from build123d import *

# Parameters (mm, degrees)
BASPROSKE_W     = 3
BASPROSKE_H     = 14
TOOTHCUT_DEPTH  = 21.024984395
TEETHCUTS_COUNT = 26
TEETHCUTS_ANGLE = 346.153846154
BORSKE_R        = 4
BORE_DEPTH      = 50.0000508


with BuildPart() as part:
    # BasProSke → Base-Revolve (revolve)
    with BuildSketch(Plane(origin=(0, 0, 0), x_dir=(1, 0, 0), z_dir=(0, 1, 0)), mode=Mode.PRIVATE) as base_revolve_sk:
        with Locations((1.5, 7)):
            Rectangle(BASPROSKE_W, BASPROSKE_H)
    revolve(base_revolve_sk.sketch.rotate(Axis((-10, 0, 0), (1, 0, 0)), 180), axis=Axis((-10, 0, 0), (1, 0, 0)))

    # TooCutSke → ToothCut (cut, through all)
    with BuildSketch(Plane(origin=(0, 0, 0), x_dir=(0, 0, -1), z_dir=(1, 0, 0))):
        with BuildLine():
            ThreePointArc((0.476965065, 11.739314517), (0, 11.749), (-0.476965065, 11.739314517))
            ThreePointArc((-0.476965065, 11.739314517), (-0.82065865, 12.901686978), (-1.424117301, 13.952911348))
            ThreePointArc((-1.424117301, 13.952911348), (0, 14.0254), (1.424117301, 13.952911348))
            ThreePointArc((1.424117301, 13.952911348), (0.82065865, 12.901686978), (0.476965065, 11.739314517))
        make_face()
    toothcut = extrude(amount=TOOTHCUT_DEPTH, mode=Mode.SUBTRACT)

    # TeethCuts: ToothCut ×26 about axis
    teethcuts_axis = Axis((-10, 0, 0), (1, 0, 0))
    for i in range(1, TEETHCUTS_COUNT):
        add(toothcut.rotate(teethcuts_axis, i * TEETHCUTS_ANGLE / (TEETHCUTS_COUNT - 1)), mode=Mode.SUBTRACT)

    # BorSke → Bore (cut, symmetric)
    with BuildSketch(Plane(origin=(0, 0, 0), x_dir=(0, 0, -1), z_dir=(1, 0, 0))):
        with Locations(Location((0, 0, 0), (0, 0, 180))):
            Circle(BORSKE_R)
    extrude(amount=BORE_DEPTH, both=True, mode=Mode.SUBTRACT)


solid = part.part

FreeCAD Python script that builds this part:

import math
import FreeCAD as App
import Part
import Sketcher


def add_polygon(sketch, points):
    """Adds a closed chain of lines whose ends are joined by coincident constraints."""
    first, n = sketch.GeometryCount, len(points)
    for a, b in zip(points, points[1:] + points[:1]):
        sketch.addGeometry(Part.LineSegment(App.Vector(*a, 0), App.Vector(*b, 0)), False)
    for i in range(n):
        sketch.addConstraint(Sketcher.Constraint("Coincident", first + i, 2, first + (i + 1) % n, 1))

doc = App.newDocument("Part")
body = doc.addObject("PartDesign::Body", "Body")

sketch1 = body.newObject("Sketcher::SketchObject", "Sketch")
sketch1.AttachmentSupport = (doc.getObject("XZ_Plane"), [""])
sketch1.MapMode = "FlatFace"
add_polygon(sketch1, [(0, -14), (0, 0), (3, 0), (3, -14)])
sketch1.addConstraint(Sketcher.Constraint("Vertical", 0))
sketch1.addConstraint(Sketcher.Constraint("Horizontal", 1))
sketch1.addConstraint(Sketcher.Constraint("Vertical", 2))
sketch1.addConstraint(Sketcher.Constraint("Horizontal", 3))
sketch1.addConstraint(Sketcher.Constraint("Coincident", 0, 2, -1, 1))
sketch1.addConstraint(Sketcher.Constraint("DistanceX", 1, 1, 1, 2, 3.0))
sketch1.addConstraint(Sketcher.Constraint("DistanceY", 0, 1, 0, 2, 14.0))
revolution = body.newObject("PartDesign::Revolution", "Revolution")
revolution.Profile = sketch1
revolution.ReferenceAxis = (sketch1, ["H_Axis"])
revolution.Angle = 360

sketch2 = body.newObject("Sketcher::SketchObject", "Sketch001")
sketch2.AttachmentSupport = (doc.getObject("YZ_Plane"), [""])
sketch2.MapMode = "FlatFace"
sketch2.addGeometry(Part.ArcOfCircle(Part.Circle(App.Vector(0, 0, 0), App.Vector(0, 0, 1), 11.7), math.radians(-2.33), math.radians(2.33)), False)
sketch2.addGeometry(Part.ArcOfCircle(Part.Circle(App.Vector(10.9, -5.6, 0), App.Vector(0, 0, 1), 5.2), math.radians(53), math.radians(80)), False)
sketch2.addGeometry(Part.ArcOfCircle(Part.Circle(App.Vector(0, 0, 0), App.Vector(0, 0, 1), 14), math.radians(-5.83), math.radians(5.83)), False)
sketch2.addGeometry(Part.ArcOfCircle(Part.Circle(App.Vector(10.9, 5.6, 0), App.Vector(0, 0, 1), 5.2), math.radians(-80), math.radians(-53)), False)
sketch2.addConstraint(Sketcher.Constraint("Coincident", 0, 1, 1, 2))
sketch2.addConstraint(Sketcher.Constraint("Coincident", 1, 1, 2, 1))
sketch2.addConstraint(Sketcher.Constraint("Coincident", 2, 2, 3, 2))
sketch2.addConstraint(Sketcher.Constraint("Coincident", 3, 1, 0, 2))
sketch2.addConstraint(Sketcher.Constraint("Coincident", 0, 3, -1, 1))
sketch2.addConstraint(Sketcher.Constraint("Coincident", 2, 3, -1, 1))
sketch2.addConstraint(Sketcher.Constraint("Equal", 1, 3))
sketch2.addConstraint(Sketcher.Constraint("Symmetric", 1, 3, 3, 3, -1))
sketch2.addConstraint(Sketcher.Constraint("Radius", 1, 5.2))
sketch2.addConstraint(Sketcher.Constraint("Radius", 0, 11.749))
sketch2.addConstraint(Sketcher.Constraint("Radius", 2, 14.0254))
sketch2.addConstraint(Sketcher.Constraint("DistanceY", 1, 3, -1, 1, 5.60141))
sketch2.addConstraint(Sketcher.Constraint("DistanceX", -1, 1, 1, 1, 13.952911))
pocket1 = body.newObject("PartDesign::Pocket", "Pocket")
pocket1.Profile = sketch2
pocket1.Type = "ThroughAll"
pocket1.Reversed = True
doc.recompute()

polarpattern = body.newObject("PartDesign::PolarPattern", "PolarPattern")
polarpattern.Originals = [pocket1]
polarpattern.Axis = (doc.getObject("X_Axis"), [""])
polarpattern.Angle = 360
polarpattern.Occurrences = 26
body.Tip = polarpattern

sketch3 = body.newObject("Sketcher::SketchObject", "Sketch002")
sketch3.AttachmentSupport = (doc.getObject("YZ_Plane"), [""])
sketch3.MapMode = "FlatFace"
sketch3.addGeometry(Part.Circle(App.Vector(0, 0, 0), App.Vector(0, 0, 1), 4), False)
sketch3.addConstraint(Sketcher.Constraint("Coincident", 0, 3, -1, 1))
sketch3.addConstraint(Sketcher.Constraint("Diameter", 0, 8.0))
pocket2 = body.newObject("PartDesign::Pocket", "Pocket001")
pocket2.Profile = sketch3
pocket2.Length = 100.000102
pocket2.Midplane = True

doc.recompute()
